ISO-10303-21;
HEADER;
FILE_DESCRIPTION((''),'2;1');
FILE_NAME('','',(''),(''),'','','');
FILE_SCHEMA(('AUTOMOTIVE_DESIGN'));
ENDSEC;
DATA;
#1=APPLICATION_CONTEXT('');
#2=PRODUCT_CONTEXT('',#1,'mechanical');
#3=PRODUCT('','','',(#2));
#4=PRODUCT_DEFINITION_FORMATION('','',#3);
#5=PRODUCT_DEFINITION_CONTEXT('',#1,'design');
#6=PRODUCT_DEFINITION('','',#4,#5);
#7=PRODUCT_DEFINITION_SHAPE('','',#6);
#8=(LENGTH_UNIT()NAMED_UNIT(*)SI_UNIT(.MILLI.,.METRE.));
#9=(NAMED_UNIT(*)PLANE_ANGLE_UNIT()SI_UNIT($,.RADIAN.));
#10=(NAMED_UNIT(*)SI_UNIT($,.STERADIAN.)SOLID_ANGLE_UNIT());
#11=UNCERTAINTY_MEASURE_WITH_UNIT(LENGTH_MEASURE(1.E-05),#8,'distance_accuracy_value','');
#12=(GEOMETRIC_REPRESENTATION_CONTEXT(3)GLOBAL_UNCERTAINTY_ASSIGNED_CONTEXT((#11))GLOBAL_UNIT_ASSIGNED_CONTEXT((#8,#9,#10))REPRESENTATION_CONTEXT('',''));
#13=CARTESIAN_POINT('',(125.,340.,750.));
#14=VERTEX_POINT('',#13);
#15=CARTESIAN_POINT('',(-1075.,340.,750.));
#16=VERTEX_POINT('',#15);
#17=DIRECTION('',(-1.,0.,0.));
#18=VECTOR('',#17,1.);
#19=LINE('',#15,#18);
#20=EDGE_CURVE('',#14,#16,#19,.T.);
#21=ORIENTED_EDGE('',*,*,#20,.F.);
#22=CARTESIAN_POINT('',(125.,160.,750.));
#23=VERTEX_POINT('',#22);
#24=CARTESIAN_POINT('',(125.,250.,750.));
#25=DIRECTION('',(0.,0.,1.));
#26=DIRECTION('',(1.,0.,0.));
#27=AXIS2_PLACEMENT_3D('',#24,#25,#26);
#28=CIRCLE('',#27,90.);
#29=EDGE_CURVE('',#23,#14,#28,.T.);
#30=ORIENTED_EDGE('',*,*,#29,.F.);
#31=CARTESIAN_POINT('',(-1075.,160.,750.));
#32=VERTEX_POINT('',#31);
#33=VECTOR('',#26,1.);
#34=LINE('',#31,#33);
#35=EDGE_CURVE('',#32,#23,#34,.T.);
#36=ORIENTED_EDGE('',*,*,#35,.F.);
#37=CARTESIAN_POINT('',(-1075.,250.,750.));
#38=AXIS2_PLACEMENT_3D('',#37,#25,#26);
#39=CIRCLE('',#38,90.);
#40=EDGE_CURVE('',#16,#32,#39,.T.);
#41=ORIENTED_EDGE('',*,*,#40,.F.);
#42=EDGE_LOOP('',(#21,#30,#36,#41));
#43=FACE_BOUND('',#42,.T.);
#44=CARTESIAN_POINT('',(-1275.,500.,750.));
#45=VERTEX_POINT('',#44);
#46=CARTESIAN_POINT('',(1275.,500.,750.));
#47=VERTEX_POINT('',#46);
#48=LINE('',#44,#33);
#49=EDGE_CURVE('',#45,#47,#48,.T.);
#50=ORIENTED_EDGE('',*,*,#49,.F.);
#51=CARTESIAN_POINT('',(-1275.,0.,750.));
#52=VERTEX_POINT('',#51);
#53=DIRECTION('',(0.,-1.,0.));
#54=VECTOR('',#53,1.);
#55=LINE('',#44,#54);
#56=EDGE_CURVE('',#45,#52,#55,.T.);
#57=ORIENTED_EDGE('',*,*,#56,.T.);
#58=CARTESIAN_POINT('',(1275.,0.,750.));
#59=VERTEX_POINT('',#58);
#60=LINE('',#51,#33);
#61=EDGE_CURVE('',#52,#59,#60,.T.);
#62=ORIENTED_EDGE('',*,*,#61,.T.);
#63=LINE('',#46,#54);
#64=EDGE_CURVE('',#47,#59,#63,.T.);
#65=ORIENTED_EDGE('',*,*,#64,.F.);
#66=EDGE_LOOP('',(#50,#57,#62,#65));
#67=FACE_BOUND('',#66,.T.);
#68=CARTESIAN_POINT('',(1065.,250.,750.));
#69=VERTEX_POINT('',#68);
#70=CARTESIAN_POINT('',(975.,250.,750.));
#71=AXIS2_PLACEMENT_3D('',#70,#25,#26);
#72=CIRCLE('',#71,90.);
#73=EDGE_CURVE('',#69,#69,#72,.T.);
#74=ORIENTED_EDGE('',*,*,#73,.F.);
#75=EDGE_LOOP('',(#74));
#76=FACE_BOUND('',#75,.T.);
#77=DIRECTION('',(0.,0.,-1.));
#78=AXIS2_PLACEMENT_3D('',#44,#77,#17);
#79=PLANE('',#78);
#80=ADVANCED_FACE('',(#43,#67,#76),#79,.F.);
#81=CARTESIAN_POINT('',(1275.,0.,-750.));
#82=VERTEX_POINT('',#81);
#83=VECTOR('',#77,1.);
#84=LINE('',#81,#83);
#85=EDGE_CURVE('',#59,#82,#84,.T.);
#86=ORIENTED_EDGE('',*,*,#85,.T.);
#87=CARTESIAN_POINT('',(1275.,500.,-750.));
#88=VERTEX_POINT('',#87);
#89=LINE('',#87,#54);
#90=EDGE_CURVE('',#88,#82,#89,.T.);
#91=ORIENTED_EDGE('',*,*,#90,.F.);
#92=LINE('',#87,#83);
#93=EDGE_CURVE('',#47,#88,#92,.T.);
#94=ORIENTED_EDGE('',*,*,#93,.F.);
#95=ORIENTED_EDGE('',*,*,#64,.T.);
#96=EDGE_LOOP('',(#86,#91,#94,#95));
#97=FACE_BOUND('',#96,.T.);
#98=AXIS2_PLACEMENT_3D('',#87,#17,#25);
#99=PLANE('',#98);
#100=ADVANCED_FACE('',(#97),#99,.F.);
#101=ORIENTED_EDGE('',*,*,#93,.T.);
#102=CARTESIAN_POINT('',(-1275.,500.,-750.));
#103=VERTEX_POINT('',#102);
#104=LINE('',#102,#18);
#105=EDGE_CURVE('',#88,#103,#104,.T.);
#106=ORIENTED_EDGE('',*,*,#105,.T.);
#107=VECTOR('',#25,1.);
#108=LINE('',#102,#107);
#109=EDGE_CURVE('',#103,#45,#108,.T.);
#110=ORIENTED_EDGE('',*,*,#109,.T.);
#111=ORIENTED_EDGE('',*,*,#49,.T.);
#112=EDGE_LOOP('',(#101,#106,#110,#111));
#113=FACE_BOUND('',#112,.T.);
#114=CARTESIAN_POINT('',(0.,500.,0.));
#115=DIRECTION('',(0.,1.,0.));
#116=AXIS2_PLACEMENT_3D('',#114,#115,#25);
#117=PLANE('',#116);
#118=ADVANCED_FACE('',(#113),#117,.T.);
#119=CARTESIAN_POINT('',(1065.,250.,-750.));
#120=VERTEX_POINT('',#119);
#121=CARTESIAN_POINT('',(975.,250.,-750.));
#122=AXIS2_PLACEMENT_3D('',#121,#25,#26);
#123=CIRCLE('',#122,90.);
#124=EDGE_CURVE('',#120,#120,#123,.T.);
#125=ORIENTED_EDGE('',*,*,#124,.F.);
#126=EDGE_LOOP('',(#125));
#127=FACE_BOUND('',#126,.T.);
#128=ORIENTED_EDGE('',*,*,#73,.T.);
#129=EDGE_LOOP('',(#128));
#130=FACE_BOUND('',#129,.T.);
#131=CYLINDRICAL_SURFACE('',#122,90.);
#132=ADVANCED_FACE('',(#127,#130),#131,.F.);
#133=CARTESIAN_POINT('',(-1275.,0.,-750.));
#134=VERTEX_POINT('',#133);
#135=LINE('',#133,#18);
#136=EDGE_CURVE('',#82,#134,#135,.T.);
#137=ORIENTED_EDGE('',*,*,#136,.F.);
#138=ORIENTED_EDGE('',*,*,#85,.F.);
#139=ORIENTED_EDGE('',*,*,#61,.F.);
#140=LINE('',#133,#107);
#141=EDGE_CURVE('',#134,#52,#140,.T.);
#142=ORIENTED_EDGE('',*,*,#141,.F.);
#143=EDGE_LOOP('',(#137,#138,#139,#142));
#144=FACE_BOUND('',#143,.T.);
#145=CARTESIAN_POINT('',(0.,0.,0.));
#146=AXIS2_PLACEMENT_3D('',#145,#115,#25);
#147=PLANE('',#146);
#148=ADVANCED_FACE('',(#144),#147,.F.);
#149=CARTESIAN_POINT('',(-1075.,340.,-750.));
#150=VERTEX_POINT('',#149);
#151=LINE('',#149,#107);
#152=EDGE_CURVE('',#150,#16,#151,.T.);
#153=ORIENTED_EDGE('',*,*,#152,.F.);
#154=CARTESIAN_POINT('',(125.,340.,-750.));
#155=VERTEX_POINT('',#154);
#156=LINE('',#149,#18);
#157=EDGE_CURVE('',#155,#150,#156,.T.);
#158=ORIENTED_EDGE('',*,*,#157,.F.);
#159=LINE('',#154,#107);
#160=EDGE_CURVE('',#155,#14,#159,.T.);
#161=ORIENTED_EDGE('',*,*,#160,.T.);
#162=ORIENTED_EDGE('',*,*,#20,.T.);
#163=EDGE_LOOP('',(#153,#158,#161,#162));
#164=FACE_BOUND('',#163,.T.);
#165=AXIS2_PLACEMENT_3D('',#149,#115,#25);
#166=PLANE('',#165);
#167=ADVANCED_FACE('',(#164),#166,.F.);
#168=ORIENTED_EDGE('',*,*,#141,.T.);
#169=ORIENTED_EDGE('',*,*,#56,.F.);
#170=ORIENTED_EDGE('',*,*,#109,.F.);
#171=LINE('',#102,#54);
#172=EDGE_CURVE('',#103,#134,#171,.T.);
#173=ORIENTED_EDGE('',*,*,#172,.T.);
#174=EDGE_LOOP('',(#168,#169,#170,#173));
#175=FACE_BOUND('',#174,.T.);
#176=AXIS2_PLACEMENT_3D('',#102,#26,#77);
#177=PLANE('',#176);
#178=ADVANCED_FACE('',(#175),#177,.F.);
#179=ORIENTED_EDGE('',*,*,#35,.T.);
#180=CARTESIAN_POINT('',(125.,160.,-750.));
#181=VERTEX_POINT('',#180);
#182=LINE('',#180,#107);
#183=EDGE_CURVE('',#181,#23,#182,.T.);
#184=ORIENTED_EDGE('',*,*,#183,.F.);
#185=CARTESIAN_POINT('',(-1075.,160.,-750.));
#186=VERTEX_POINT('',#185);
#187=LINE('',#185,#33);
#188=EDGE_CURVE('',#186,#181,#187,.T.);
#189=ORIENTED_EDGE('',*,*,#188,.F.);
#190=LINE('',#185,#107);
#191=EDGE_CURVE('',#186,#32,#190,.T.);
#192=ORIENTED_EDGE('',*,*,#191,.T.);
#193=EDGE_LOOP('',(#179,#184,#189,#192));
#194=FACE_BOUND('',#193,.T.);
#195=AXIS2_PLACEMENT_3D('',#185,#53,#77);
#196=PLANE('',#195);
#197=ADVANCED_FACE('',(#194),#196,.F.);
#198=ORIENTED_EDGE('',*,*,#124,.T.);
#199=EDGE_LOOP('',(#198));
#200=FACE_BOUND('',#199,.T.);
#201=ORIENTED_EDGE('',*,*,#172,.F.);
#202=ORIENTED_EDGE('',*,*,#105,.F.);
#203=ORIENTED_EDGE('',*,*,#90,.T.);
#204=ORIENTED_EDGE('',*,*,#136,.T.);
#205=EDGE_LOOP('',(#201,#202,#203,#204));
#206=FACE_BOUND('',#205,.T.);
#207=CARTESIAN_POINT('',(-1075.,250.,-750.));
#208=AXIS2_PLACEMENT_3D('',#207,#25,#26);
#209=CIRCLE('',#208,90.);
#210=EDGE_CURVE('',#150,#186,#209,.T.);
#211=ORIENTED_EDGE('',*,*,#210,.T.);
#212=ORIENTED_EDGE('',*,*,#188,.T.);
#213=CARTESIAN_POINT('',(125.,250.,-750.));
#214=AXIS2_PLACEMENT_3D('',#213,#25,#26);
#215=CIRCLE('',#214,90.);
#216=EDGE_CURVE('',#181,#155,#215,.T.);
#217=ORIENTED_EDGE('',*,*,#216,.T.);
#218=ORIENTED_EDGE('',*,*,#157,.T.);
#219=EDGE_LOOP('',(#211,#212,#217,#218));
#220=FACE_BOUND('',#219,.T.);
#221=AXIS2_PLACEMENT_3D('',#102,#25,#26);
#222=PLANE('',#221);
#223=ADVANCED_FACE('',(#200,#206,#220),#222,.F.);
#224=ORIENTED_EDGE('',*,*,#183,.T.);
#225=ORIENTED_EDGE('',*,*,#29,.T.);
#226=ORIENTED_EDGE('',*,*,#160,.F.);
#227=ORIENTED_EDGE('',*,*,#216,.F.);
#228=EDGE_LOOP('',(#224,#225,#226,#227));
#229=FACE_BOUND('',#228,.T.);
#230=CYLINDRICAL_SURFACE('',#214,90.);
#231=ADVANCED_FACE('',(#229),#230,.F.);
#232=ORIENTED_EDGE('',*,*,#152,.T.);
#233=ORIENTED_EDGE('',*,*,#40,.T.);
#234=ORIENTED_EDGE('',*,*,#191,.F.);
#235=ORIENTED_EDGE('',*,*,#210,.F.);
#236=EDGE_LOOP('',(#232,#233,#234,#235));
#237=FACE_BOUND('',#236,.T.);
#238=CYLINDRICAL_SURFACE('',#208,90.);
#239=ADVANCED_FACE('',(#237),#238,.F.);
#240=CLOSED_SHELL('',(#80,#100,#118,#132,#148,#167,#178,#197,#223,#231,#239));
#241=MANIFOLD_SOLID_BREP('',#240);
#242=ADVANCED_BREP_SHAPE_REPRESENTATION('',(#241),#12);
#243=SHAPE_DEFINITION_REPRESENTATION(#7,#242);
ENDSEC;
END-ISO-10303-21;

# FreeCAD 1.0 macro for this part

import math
import FreeCAD as App
import Part
import Sketcher
from FreeCAD import Vector

doc = App.newDocument("Part")
body = doc.addObject("PartDesign::Body", "Body")

# Sketch on XZ plane
sketch1 = body.newObject("Sketcher::SketchObject", "Sketch")
sketch1.AttachmentSupport = (doc.getObject("XZ_Plane"), [""])
sketch1.MapMode = "FlatFace"
sketch1.addGeometry([
    Part.LineSegment(Vector(-1275, -750, 0), Vector(-1275, 750, 0)),
    Part.LineSegment(Vector(-1275, 750, 0), Vector(1275, 750, 0)),
    Part.LineSegment(Vector(1275, 750, 0), Vector(1275, -750, 0)),
    Part.LineSegment(Vector(1275, -750, 0), Vector(-1275, -750, 0)),
], False)
sketch1.addConstraint([
    Sketcher.Constraint("Coincident", 0, 2, 1, 1),
    Sketcher.Constraint("Coincident", 1, 2, 2, 1),
    Sketcher.Constraint("Coincident", 2, 2, 3, 1),
    Sketcher.Constraint("Coincident", 3, 2, 0, 1),
    Sketcher.Constraint("Vertical", 0),
    Sketcher.Constraint("Horizontal", 1),
    Sketcher.Constraint("Vertical", 2),
    Sketcher.Constraint("Horizontal", 3),
    Sketcher.Constraint("Symmetric", 0, 2, 2, 2, -1, 1),
    Sketcher.Constraint("DistanceX", 1, 1, 1, 2, 2550.0),
    Sketcher.Constraint("DistanceY", 0, 1, 0, 2, 1500.0),
])
pad1 = body.newObject("PartDesign::Pad", "Pad")
pad1.Profile = sketch1
pad1.Length = 500
pad1.Reversed = True

# Sketch on XY plane
sketch2 = body.newObject("Sketcher::SketchObject", "Sketch001")
sketch2.AttachmentSupport = (doc.getObject("XY_Plane"), [""])
sketch2.MapMode = "FlatFace"
sketch2.AttachmentOffset = App.Placement(Vector(0, 0, 750), App.Rotation())
sketch2.addGeometry([
    Part.Circle(Vector(975, 250, 0), Vector(0, 0, 1), 90),  # 0
    Part.LineSegment(Vector(125, 340, 0), Vector(-1075, 340, 0)),  # 1
    Part.ArcOfCircle(Part.Circle(Vector(-1075, 250, 0), Vector(0, 0, 1), 90), math.radians(90), math.radians(270)),  # 2
    Part.LineSegment(Vector(-1075, 160, 0), Vector(125, 160, 0)),  # 3
    Part.ArcOfCircle(Part.Circle(Vector(125, 250, 0), Vector(0, 0, 1), 90), math.radians(-90), math.radians(90)),  # 4
], False)
sketch2.addConstraint([
    Sketcher.Constraint("Tangent", 1, 2, 2, 1),
    Sketcher.Constraint("Tangent", 2, 2, 3, 1),
    Sketcher.Constraint("Tangent", 3, 2, 4, 1),
    Sketcher.Constraint("Tangent", 4, 2, 1, 1),
    Sketcher.Constraint("Horizontal", 1),
    Sketcher.Constraint("Horizontal", 3),
    Sketcher.Constraint("Equal", 0, 2),
    Sketcher.Constraint("Horizontal", 0, 3, 2, 3),
    Sketcher.Constraint("Diameter", 0, 180.0),
    Sketcher.Constraint("DistanceX", 1, 2, 1, 1, 1200.0),
    Sketcher.Constraint("DistanceX", -1, 1, 0, 3, 975.0),
    Sketcher.Constraint("DistanceY", -1, 1, 0, 3, 250.0),
    Sketcher.Constraint("DistanceX", 2, 3, -1, 1, 1075.0),
])
pocket1 = body.newObject("PartDesign::Pocket", "Pocket")
pocket1.Profile = sketch2
pocket1.Type = "ThroughAll"

doc.recompute()
